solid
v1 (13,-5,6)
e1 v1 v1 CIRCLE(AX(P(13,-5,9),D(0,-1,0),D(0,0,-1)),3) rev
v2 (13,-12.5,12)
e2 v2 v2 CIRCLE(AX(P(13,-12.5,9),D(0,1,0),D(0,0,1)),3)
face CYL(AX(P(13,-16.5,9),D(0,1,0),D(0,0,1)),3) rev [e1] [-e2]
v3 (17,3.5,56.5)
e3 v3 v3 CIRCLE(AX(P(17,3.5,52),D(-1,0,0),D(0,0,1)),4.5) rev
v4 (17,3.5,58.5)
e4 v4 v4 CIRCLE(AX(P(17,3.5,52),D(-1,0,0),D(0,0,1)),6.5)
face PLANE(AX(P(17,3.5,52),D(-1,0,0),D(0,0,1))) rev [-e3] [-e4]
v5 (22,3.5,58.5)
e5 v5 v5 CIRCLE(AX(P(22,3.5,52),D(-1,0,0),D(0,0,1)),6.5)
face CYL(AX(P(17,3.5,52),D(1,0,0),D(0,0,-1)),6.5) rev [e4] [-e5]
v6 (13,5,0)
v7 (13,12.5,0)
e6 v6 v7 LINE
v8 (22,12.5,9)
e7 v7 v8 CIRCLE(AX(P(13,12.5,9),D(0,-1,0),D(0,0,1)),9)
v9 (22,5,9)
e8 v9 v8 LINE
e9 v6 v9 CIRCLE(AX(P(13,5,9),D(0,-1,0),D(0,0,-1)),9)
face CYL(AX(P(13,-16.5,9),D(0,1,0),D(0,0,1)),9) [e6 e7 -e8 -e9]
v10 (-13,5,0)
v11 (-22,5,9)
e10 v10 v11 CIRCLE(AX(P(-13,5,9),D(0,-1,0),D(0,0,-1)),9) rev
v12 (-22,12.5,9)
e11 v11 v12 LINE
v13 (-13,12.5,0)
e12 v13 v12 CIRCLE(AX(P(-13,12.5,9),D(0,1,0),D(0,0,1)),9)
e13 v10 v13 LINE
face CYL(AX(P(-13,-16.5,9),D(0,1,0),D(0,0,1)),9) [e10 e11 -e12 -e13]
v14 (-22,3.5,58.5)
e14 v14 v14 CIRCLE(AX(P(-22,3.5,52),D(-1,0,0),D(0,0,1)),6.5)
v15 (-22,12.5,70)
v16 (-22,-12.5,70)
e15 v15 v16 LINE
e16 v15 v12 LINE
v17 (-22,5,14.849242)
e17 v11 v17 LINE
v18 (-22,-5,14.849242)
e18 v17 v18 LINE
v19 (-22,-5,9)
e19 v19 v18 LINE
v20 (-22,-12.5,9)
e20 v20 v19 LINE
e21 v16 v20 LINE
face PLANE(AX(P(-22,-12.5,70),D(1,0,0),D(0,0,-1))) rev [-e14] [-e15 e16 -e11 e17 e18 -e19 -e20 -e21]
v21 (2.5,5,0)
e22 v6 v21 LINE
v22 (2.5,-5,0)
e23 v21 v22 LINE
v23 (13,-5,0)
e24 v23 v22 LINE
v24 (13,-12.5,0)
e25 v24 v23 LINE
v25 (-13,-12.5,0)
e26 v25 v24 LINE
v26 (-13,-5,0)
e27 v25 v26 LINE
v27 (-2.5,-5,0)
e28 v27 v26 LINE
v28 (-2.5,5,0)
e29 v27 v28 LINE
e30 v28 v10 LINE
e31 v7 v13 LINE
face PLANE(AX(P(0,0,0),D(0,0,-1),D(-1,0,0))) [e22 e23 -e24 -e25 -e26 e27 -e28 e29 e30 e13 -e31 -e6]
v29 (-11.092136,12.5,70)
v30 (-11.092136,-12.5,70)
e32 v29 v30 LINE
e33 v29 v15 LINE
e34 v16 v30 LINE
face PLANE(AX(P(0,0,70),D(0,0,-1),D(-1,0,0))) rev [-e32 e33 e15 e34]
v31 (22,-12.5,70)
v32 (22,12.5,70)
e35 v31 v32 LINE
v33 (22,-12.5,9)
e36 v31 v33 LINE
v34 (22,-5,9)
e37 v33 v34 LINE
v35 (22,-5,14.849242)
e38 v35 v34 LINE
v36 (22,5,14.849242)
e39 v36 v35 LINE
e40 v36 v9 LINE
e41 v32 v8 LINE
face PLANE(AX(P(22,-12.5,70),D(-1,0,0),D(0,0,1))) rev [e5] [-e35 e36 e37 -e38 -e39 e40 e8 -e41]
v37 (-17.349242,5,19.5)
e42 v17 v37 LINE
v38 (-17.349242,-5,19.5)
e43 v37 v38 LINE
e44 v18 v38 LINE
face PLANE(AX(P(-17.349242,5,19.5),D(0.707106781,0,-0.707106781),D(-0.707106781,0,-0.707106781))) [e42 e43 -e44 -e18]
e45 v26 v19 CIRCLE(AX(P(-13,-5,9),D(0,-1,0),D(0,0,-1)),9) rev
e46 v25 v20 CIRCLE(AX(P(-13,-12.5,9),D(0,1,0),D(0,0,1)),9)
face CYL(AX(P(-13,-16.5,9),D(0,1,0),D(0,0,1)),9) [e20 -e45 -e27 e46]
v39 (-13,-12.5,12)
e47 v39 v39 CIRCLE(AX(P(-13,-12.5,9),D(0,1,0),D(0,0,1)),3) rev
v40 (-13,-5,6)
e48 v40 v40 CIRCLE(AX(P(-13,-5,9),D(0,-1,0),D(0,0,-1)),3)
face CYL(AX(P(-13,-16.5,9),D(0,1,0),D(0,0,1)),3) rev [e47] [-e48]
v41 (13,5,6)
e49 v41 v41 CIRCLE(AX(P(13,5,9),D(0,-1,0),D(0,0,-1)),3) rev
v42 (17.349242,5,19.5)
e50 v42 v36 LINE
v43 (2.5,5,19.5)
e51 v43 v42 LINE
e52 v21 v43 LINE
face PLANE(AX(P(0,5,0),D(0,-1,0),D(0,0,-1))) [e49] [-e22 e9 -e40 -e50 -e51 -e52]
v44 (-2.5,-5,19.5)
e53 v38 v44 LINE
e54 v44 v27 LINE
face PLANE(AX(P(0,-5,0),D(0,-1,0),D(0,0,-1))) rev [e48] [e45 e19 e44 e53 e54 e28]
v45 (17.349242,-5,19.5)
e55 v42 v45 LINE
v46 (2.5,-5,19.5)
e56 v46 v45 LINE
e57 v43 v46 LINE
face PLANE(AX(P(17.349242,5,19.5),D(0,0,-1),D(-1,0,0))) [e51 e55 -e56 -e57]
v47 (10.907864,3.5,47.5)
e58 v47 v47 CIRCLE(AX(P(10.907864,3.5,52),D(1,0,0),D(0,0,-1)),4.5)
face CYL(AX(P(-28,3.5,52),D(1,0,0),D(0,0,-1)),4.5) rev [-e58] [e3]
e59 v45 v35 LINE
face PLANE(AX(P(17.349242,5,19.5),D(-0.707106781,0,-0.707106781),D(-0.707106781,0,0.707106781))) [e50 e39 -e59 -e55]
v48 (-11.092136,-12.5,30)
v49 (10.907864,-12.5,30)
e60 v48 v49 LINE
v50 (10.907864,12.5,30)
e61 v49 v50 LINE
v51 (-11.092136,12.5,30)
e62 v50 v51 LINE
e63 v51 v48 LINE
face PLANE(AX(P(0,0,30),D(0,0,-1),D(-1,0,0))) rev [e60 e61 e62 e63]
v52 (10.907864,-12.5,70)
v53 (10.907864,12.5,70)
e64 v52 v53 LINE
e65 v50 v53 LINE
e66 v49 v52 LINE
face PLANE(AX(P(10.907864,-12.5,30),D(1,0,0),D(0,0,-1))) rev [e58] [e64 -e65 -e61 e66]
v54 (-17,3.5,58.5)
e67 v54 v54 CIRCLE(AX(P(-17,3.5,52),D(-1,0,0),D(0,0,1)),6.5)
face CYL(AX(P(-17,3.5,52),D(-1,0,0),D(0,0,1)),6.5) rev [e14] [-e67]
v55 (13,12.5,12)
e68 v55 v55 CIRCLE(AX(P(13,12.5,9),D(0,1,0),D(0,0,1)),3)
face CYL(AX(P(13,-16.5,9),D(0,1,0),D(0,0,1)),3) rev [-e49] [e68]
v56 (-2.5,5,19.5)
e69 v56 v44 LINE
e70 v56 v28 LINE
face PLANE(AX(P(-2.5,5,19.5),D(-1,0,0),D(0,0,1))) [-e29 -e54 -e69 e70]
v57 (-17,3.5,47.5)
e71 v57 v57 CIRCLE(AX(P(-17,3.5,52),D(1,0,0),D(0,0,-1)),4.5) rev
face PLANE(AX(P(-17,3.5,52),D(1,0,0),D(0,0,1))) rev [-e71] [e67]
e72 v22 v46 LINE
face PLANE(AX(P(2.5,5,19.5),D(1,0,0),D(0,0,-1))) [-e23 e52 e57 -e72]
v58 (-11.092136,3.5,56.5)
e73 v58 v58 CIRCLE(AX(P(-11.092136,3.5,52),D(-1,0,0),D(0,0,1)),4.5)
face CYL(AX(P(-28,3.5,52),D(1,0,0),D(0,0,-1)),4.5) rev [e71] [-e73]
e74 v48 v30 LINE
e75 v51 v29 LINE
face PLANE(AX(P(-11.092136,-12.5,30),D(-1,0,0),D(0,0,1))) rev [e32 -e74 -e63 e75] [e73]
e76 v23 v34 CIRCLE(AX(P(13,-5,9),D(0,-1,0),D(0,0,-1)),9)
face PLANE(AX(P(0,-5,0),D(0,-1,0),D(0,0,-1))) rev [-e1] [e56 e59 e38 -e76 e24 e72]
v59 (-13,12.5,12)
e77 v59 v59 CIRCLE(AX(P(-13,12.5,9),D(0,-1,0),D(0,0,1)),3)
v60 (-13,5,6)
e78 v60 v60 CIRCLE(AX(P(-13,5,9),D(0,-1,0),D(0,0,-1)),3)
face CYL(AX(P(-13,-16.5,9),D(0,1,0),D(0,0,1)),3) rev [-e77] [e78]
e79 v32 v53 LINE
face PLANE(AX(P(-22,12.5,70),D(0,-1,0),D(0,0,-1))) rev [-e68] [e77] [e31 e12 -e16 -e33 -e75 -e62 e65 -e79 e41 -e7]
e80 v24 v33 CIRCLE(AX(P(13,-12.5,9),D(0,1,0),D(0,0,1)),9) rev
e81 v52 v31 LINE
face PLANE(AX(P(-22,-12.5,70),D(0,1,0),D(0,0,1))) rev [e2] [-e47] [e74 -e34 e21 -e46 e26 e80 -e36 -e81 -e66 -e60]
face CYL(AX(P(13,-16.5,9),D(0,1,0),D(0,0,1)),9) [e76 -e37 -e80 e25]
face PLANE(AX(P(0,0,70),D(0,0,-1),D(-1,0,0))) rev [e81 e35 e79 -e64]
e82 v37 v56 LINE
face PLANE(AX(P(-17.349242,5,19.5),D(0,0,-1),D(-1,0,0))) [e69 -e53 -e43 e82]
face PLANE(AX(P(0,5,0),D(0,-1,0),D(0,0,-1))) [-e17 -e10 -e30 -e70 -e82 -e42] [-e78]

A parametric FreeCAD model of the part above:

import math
import FreeCAD as App
import Part
import Sketcher

V = App.Vector


def add_polygon(sketch, points):
    """Adds a closed chain of lines whose ends are joined by coincident constraints."""
    first, n = sketch.GeometryCount, len(points)
    for a, b in zip(points, points[1:] + points[:1]):
        sketch.addGeometry(Part.LineSegment(App.Vector(*a, 0), App.Vector(*b, 0)), False)
    for i in range(n):
        sketch.addConstraint(Sketcher.Constraint("Coincident", first + i, 2, first + (i + 1) % n, 1))

doc = App.newDocument("Part")
body = doc.addObject("PartDesign::Body", "Body")

sketch1 = body.newObject("Sketcher::SketchObject", "Sketch")
sketch1.AttachmentSupport = (doc.getObject("XY_Plane"), [""])
sketch1.MapMode = "FlatFace"
add_polygon(sketch1, [(-22, 12.5), (-22, -12.5), (22, -12.5), (22, 12.5)])
sketch1.addConstraint([
    Sketcher.Constraint("Vertical", 0),
    Sketcher.Constraint("Horizontal", 1),
    Sketcher.Constraint("Vertical", 2),
    Sketcher.Constraint("Horizontal", 3),
    Sketcher.Constraint("Symmetric", 0, 2, 2, 2, -1, 1),
    Sketcher.Constraint("DistanceX", 1, 1, 1, 2, 44.0),
    Sketcher.Constraint("DistanceY", 0, 2, 0, 1, 25.0),
])
pad1 = body.newObject("PartDesign::Pad", "Pad")
pad1.Profile = sketch1
pad1.Length = 70

sketch2 = body.newObject("Sketcher::SketchObject", "Sketch001")
sketch2.AttachmentSupport = (doc.getObject("XY_Plane"), [""])
sketch2.MapMode = "FlatFace"
sketch2.AttachmentOffset = App.Placement(V(0, 0, 70), App.Rotation())
add_polygon(sketch2, [(-11.092136, 12.5), (-11.092136, -12.5), (10.907864, -12.5), (10.907864, 12.5)])
sketch2.addConstraint([
    Sketcher.Constraint("Vertical", 0),
    Sketcher.Constraint("Horizontal", 1),
    Sketcher.Constraint("Vertical", 2),
    Sketcher.Constraint("Horizontal", 3),
    Sketcher.Constraint("DistanceX", 1, 1, 1, 2, 22.0),
    Sketcher.Constraint("DistanceY", 0, 2, 0, 1, 25.0),
    Sketcher.Constraint("DistanceY", 0, 2, -1, 1, 12.5),
    Sketcher.Constraint("DistanceX", 0, 2, -1, 1, 11.092136),
])
pocket1 = body.newObject("PartDesign::Pocket", "Pocket")
pocket1.Profile = sketch2
pocket1.Length = 40

sketch3 = body.newObject("Sketcher::SketchObject", "Sketch002")
sketch3.AttachmentSupport = (doc.getObject("YZ_Plane"), [""])
sketch3.MapMode = "FlatFace"
sketch3.AttachmentOffset = App.Placement(V(0, 0, 22), App.Rotation())
sketch3.addGeometry(Part.Circle(V(3.5, 52, 0), V(0, 0, 1), 4.5), False)
sketch3.addConstraint([
    Sketcher.Constraint("Diameter", 0, 9.0),
    Sketcher.Constraint("DistanceY", -1, 1, 0, 3, 52.0),
    Sketcher.Constraint("DistanceX", -1, 1, 0, 3, 3.5),
])
pocket2 = body.newObject("PartDesign::Pocket", "Pocket001")
pocket2.Profile = sketch3
pocket2.Length = 50

sketch4 = body.newObject("Sketcher::SketchObject", "Sketch003")
sketch4.AttachmentSupport = (doc.getObject("YZ_Plane"), [""])
sketch4.MapMode = "FlatFace"
sketch4.AttachmentOffset = App.Placement(V(0, 0, 22), App.Rotation())
sketch4.addGeometry(Part.Circle(V(3.5, 52, 0), V(0, 0, 1), 6.5), False)
sketch4.addConstraint([
    Sketcher.Constraint("Diameter", 0, 13.0),
    Sketcher.Constraint("DistanceY", -1, 1, 0, 3, 52.0),
    Sketcher.Constraint("DistanceX", -1, 1, 0, 3, 3.5),
])
pocket3 = body.newObject("PartDesign::Pocket", "Pocket002")
pocket3.Profile = sketch4
pocket3.Length = 5

sketch5 = body.newObject("Sketcher::SketchObject", "Sketch004")
sketch5.AttachmentSupport = (doc.getObject("XZ_Plane"), [""])
sketch5.MapMode = "FlatFace"
sketch5.AttachmentOffset = App.Placement(V(0, 0, -12.5), App.Rotation())
sketch5.addGeometry([
    Part.Circle(V(13, 9, 0), V(0, 0, 1), 3),
    Part.LineSegment(V(13, -12.355748, 0), V(13, 0, 0)),
    Part.ArcOfCircle(Part.Circle(V(13, 9, 0), V(0, 0, 1), 9), math.radians(-90), math.radians(0)),
    Part.LineSegment(V(22, 9, 0), V(34.355748, 9, 0)),
    Part.ArcOfCircle(Part.Circle(V(13, 9, 0), V(0, 0, 1), 21.355748), math.radians(-90), math.radians(0)),
], False)
sketch5.addConstraint([
    Sketcher.Constraint("Coincident", 1, 2, 2, 1),
    Sketcher.Constraint("Coincident", 2, 2, 3, 1),
    Sketcher.Constraint("Coincident", 3, 2, 4, 2),
    Sketcher.Constraint("Coincident", 4, 1, 1, 1),
    Sketcher.Constraint("Vertical", 1),
    Sketcher.Constraint("Horizontal", 3),
    Sketcher.Constraint("Coincident", 2, 3, 0, 3),
    Sketcher.Constraint("Coincident", 4, 3, 0, 3),
    Sketcher.Constraint("PointOnObject", 1, 2, -1),
    Sketcher.Constraint("Horizontal", 4, 3, 2, 2),
    Sketcher.Constraint("Vertical", 4, 3, 1, 2),
    Sketcher.Constraint("Diameter", 0, 6.0),
    Sketcher.Constraint("Radius", 2, 9.0),
    Sketcher.Constraint("DistanceX", -1, 1, 0, 3, 13.0),
    Sketcher.Constraint("Radius", 4, 21.355748),
])
pocket4 = body.newObject("PartDesign::Pocket", "Pocket003")
pocket4.Profile = sketch5
pocket4.Length = 29
pocket4.Reversed = True
doc.recompute()

mirrored = body.newObject("PartDesign::Mirrored", "Mirrored")
mirrored.Originals = [pocket3, pocket4]
mirrored.MirrorPlane = (doc.getObject("YZ_Plane"), [""])
body.Tip = mirrored

sketch6 = body.newObject("Sketcher::SketchObject", "Sketch005")
sketch6.AttachmentSupport = (doc.getObject("XZ_Plane"), [""])
sketch6.MapMode = "FlatFace"
add_polygon(sketch6, [(2.5, -5.258138), (2.5, 19.5), (17.349242, 19.5), (22, 14.849242), (22, -5.258138)])
add_polygon(sketch6, [(-22, -5.258138), (-22, 14.849242), (-17.349242, 19.5), (-2.5, 19.5), (-2.5, -5.258138)])
sketch6.addConstraint([
    Sketcher.Constraint("Vertical", 0),
    Sketcher.Constraint("Horizontal", 1),
    Sketcher.Constraint("Vertical", 3),
    Sketcher.Constraint("Horizontal", 4),
    Sketcher.Constraint("Vertical", 5),
    Sketcher.Constraint("Horizontal", 7),
    Sketcher.Constraint("Vertical", 8),
    Sketcher.Constraint("Horizontal", 9),
    Sketcher.Constraint("Symmetric", 2, 2, 5, 2, -2),
    Sketcher.Constraint("Symmetric", 1, 2, 6, 2, -2),
    Sketcher.Constraint("Symmetric", 4, 2, 8, 2, -2),
    Sketcher.Constraint("Perpendicular", 2, 6),
    Sketcher.Constraint("DistanceX", 4, 2, 4, 1, 19.5),
    Sketcher.Constraint("DistanceX", -1, 1, 2, 2, 22.0),
    Sketcher.Constraint("DistanceY", -1, 1, 0, 2, 19.5),
    Sketcher.Constraint("DistanceY", 3, 2, 3, 1, 20.10738),
    Sketcher.Constraint("DistanceX", 1, 1, 1, 2, 14.849242),
])
pocket5 = body.newObject("PartDesign::Pocket", "Pocket004")
pocket5.Profile = sketch6
pocket5.Type = "TwoLengths"
pocket5.Length = 5
pocket5.Length2 = 5

doc.recompute()
